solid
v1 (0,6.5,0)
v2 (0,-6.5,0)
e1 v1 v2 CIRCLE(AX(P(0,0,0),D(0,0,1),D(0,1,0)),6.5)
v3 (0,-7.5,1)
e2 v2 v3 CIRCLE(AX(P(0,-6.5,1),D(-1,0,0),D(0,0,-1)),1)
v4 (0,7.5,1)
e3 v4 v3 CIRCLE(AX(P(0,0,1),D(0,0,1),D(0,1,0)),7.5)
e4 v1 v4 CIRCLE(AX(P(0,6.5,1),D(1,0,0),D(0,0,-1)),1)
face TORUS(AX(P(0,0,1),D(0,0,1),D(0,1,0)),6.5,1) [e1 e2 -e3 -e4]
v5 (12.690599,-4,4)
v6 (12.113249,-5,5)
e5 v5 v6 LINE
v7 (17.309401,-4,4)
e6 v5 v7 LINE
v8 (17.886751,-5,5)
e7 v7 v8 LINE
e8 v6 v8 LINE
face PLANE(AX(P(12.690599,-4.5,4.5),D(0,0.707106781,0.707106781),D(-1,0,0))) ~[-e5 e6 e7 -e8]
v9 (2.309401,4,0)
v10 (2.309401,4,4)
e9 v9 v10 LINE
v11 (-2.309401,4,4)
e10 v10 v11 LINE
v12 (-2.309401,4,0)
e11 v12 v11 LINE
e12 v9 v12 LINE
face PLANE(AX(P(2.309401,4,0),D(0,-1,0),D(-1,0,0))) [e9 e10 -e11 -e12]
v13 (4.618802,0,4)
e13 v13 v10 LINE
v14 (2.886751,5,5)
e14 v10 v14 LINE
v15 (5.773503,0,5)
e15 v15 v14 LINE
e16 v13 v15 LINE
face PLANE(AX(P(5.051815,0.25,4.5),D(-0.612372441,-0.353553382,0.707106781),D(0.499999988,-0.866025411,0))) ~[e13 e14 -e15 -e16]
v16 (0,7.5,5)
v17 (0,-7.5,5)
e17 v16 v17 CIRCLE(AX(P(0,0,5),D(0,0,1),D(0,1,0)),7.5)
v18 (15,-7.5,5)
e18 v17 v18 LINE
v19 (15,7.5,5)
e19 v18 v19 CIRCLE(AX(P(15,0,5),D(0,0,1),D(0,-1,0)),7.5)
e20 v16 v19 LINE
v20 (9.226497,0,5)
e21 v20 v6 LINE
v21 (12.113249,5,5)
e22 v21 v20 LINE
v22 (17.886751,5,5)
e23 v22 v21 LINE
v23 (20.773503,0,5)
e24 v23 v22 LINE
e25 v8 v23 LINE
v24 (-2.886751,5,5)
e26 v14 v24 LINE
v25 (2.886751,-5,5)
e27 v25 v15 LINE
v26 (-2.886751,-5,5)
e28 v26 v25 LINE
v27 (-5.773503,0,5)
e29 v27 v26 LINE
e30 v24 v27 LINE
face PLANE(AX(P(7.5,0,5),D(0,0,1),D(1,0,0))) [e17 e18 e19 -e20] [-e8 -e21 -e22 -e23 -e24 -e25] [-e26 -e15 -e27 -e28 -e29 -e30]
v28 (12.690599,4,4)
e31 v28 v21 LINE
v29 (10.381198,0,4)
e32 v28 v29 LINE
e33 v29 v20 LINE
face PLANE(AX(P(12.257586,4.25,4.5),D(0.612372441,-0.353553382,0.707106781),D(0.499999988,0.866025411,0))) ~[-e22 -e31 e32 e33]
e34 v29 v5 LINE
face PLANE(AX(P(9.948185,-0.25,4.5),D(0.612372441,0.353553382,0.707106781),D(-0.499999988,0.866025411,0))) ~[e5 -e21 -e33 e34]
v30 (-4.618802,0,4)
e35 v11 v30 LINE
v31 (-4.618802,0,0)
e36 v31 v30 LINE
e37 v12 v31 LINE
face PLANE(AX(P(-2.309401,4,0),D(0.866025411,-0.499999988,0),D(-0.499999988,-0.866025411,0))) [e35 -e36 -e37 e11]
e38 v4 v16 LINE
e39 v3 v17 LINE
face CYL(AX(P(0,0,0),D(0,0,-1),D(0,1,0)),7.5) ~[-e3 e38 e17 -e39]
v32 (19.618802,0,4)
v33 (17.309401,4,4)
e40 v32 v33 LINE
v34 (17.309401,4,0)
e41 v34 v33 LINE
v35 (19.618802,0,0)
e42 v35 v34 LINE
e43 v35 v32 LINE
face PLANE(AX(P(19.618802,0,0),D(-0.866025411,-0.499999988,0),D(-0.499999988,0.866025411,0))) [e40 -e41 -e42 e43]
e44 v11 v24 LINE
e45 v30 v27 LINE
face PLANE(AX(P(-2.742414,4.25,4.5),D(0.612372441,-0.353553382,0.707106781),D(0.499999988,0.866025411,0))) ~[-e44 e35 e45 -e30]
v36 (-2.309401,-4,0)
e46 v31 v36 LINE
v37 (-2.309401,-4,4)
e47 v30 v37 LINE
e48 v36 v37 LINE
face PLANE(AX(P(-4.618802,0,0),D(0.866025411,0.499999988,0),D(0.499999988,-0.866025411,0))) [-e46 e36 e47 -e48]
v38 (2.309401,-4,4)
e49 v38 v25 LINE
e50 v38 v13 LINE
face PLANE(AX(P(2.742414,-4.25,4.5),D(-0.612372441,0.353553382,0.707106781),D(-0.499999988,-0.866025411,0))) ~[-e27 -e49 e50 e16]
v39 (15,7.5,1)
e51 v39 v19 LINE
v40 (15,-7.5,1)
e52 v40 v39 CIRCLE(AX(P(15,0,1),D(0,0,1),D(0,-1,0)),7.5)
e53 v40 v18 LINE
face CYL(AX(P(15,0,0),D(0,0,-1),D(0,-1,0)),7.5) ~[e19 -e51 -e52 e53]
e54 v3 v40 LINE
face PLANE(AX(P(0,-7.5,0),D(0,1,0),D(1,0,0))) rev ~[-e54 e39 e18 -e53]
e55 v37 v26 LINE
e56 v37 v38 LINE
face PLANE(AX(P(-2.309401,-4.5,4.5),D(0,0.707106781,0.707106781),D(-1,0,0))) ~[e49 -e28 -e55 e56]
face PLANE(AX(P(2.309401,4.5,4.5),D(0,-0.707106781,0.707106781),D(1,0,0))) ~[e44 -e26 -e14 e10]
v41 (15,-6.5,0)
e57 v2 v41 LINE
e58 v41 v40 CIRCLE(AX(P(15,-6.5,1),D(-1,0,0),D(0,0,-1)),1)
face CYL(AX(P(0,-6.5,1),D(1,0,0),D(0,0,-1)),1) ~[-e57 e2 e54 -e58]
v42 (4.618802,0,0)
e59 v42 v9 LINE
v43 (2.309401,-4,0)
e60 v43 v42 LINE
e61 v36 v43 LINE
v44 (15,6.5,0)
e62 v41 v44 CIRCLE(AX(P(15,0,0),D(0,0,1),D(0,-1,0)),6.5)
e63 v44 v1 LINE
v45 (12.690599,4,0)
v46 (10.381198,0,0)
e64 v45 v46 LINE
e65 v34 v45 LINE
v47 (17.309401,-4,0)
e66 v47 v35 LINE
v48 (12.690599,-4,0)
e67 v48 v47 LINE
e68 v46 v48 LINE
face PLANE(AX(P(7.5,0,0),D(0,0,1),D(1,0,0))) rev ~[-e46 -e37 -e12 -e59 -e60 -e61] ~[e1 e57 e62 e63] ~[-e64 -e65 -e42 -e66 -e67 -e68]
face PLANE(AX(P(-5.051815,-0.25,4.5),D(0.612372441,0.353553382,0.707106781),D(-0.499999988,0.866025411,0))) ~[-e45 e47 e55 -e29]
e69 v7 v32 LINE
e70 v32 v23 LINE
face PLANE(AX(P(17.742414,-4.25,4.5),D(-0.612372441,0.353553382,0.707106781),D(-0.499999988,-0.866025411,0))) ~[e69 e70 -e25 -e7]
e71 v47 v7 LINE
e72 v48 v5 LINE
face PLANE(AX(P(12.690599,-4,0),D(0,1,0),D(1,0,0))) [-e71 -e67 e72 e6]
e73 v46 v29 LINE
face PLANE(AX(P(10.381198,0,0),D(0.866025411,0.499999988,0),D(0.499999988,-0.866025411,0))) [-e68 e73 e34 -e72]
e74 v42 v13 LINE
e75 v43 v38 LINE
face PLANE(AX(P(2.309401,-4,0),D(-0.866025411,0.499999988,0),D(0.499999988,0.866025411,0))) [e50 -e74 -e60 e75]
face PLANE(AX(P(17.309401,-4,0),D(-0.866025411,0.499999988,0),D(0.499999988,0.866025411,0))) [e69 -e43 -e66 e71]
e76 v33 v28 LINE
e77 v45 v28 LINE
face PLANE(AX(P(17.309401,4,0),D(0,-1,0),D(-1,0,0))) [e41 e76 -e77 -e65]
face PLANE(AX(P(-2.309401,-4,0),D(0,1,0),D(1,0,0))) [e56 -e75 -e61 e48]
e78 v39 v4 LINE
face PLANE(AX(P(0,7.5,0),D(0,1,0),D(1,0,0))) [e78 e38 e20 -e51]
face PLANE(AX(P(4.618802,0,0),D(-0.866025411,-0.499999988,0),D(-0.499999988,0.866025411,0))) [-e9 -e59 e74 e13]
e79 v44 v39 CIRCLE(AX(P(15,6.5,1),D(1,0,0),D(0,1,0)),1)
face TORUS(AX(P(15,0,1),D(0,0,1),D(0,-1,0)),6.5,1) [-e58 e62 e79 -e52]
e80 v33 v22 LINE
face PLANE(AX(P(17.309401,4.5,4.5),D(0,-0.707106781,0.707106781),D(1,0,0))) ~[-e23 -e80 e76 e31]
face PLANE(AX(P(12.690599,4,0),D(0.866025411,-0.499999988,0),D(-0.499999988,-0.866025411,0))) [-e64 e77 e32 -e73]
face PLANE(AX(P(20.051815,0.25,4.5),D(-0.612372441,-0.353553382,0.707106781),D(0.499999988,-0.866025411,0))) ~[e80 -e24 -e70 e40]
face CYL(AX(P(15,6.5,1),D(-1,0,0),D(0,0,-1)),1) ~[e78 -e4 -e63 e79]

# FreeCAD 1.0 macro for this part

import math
import FreeCAD as App
import Part
import Sketcher
Q = App.Units.Quantity


def edges_at(feature, points):
    """Names of the edges that pass closest to the given points."""
    edges = feature.Shape.Edges
    near = lambda p: min(range(len(edges)), key=lambda i: edges[i].distToShape(Part.Vertex(*p))[0])
    return sorted({f"Edge{near(p) + 1}" for p in points})


def add_polygon(sketch, points):
    """Adds a closed chain of lines whose ends are joined by coincident constraints."""
    first, n = sketch.GeometryCount, len(points)
    for a, b in zip(points, points[1:] + points[:1]):
        sketch.addGeometry(Part.LineSegment(App.Vector(*a, 0), App.Vector(*b, 0)), False)
    for i in range(n):
        sketch.addConstraint(Sketcher.Constraint("Coincident", first + i, 2, first + (i + 1) % n, 1))

doc = App.newDocument("Part")
body = doc.addObject("PartDesign::Body", "Body")

# Sketch on XY plane
sketch1 = body.newObject("Sketcher::SketchObject", "Sketch")
sketch1.AttachmentSupport = (doc.getObject("XY_Plane"), [""])
sketch1.MapMode = "FlatFace"
sketch1.addGeometry(Part.ArcOfCircle(Part.Circle(App.Vector(0, 0, 0), App.Vector(0, 0, 1), 7.5), math.radians(90), math.radians(270)), False)  # 0
sketch1.addGeometry(Part.LineSegment(App.Vector(0, -7.5, 0), App.Vector(15, -7.5, 0)), False)  # 1
sketch1.addGeometry(Part.ArcOfCircle(Part.Circle(App.Vector(15, 0, 0), App.Vector(0, 0, 1), 7.5), math.radians(-90), math.radians(90)), False)  # 2
sketch1.addGeometry(Part.LineSegment(App.Vector(15, 7.5, 0), App.Vector(0, 7.5, 0)), False)  # 3
add_polygon(sketch1, [(-2.309401, 4), (2.309401, 4), (4.618802, 0), (2.309401, -4), (-2.309401, -4), (-4.618802, 0)])  # lines 4-9
add_polygon(sketch1, [(10.381198, 0), (12.690599, 4), (17.309401, 4), (19.618802, 0), (17.309401, -4), (12.690599, -4)])  # lines 10-15
sketch1.addConstraint([
    Sketcher.Constraint("Tangent", 0, 2, 1, 1),
    Sketcher.Constraint("Tangent", 1, 2, 2, 1),
    Sketcher.Constraint("Tangent", 2, 2, 3, 1),
    Sketcher.Constraint("Tangent", 3, 2, 0, 1),
    Sketcher.Constraint("Horizontal", 1),
    Sketcher.Constraint("Horizontal", 3),
    Sketcher.Constraint("Horizontal", 4),
    Sketcher.Constraint("Horizontal", 7),
    Sketcher.Constraint("Horizontal", 11),
    Sketcher.Constraint("Horizontal", 14),
    Sketcher.Constraint("Coincident", 0, 3, -1, 1),
    Sketcher.Constraint("Symmetric", 4, 2, 7, 2, -1, 1),
    Sketcher.Constraint("Symmetric", 5, 2, 8, 2, -1, 1),
    Sketcher.Constraint("Symmetric", 11, 2, 13, 2, -1),
    Sketcher.Constraint("PointOnObject", 5, 2, -1),
    Sketcher.Constraint("PointOnObject", 12, 2, -1),
    Sketcher.Constraint("PointOnObject", 15, 2, -1),
    Sketcher.Constraint("Parallel", 6, 9),
    Sketcher.Constraint("Parallel", 9, 10),
    Sketcher.Constraint("Parallel", 8, 12),
    Sketcher.Constraint("Parallel", 10, 13),
    Sketcher.Constraint("Parallel", 12, 15),
    Sketcher.Constraint("Horizontal", 9, 2, 10, 2),
    Sketcher.Constraint("Equal", 7, 11),
    Sketcher.Constraint("Radius", 0, Q("7.5 mm")),
    Sketcher.Constraint("DistanceX", 1, 1, 1, 2, Q("15 mm")),
    Sketcher.Constraint("Angle", 5, Q("-60.000001 deg")),
    Sketcher.Constraint("DistanceY", -1, 1, 4, 2, Q("4 mm")),
    Sketcher.Constraint("DistanceX", 4, 1, 4, 2, Q("4.618802 mm")),
    Sketcher.Constraint("DistanceX", -1, 1, 10, 2, Q("12.690599 mm")),
])
pad1 = body.newObject("PartDesign::Pad", "Pad")
pad1.Profile = sketch1
pad1.Length = 5
doc.recompute()

chamfer = body.newObject("PartDesign::Chamfer", "Chamfer")
chamfer.Base = (pad1, edges_at(pad1, [
    (11.536, 2, 5),
    (15, 4, 5),
    (18.464, 2, 5),
    (18.464, -2, 5),
    (15, -4, 5),
    (11.536, -2, 5),
    (3.464, 2, 5),
    (0, 4, 5),
    (-3.464, 2, 5),
    (-3.464, -2, 5),
    (0, -4, 5),
    (3.464, -2, 5),
]))
chamfer.Size = 1
doc.recompute()

fillet = body.newObject("PartDesign::Fillet", "Fillet")
fillet.Base = (chamfer, edges_at(chamfer, [(7.5, -7.5, 0)]))
fillet.Radius = 1

doc.recompute()
